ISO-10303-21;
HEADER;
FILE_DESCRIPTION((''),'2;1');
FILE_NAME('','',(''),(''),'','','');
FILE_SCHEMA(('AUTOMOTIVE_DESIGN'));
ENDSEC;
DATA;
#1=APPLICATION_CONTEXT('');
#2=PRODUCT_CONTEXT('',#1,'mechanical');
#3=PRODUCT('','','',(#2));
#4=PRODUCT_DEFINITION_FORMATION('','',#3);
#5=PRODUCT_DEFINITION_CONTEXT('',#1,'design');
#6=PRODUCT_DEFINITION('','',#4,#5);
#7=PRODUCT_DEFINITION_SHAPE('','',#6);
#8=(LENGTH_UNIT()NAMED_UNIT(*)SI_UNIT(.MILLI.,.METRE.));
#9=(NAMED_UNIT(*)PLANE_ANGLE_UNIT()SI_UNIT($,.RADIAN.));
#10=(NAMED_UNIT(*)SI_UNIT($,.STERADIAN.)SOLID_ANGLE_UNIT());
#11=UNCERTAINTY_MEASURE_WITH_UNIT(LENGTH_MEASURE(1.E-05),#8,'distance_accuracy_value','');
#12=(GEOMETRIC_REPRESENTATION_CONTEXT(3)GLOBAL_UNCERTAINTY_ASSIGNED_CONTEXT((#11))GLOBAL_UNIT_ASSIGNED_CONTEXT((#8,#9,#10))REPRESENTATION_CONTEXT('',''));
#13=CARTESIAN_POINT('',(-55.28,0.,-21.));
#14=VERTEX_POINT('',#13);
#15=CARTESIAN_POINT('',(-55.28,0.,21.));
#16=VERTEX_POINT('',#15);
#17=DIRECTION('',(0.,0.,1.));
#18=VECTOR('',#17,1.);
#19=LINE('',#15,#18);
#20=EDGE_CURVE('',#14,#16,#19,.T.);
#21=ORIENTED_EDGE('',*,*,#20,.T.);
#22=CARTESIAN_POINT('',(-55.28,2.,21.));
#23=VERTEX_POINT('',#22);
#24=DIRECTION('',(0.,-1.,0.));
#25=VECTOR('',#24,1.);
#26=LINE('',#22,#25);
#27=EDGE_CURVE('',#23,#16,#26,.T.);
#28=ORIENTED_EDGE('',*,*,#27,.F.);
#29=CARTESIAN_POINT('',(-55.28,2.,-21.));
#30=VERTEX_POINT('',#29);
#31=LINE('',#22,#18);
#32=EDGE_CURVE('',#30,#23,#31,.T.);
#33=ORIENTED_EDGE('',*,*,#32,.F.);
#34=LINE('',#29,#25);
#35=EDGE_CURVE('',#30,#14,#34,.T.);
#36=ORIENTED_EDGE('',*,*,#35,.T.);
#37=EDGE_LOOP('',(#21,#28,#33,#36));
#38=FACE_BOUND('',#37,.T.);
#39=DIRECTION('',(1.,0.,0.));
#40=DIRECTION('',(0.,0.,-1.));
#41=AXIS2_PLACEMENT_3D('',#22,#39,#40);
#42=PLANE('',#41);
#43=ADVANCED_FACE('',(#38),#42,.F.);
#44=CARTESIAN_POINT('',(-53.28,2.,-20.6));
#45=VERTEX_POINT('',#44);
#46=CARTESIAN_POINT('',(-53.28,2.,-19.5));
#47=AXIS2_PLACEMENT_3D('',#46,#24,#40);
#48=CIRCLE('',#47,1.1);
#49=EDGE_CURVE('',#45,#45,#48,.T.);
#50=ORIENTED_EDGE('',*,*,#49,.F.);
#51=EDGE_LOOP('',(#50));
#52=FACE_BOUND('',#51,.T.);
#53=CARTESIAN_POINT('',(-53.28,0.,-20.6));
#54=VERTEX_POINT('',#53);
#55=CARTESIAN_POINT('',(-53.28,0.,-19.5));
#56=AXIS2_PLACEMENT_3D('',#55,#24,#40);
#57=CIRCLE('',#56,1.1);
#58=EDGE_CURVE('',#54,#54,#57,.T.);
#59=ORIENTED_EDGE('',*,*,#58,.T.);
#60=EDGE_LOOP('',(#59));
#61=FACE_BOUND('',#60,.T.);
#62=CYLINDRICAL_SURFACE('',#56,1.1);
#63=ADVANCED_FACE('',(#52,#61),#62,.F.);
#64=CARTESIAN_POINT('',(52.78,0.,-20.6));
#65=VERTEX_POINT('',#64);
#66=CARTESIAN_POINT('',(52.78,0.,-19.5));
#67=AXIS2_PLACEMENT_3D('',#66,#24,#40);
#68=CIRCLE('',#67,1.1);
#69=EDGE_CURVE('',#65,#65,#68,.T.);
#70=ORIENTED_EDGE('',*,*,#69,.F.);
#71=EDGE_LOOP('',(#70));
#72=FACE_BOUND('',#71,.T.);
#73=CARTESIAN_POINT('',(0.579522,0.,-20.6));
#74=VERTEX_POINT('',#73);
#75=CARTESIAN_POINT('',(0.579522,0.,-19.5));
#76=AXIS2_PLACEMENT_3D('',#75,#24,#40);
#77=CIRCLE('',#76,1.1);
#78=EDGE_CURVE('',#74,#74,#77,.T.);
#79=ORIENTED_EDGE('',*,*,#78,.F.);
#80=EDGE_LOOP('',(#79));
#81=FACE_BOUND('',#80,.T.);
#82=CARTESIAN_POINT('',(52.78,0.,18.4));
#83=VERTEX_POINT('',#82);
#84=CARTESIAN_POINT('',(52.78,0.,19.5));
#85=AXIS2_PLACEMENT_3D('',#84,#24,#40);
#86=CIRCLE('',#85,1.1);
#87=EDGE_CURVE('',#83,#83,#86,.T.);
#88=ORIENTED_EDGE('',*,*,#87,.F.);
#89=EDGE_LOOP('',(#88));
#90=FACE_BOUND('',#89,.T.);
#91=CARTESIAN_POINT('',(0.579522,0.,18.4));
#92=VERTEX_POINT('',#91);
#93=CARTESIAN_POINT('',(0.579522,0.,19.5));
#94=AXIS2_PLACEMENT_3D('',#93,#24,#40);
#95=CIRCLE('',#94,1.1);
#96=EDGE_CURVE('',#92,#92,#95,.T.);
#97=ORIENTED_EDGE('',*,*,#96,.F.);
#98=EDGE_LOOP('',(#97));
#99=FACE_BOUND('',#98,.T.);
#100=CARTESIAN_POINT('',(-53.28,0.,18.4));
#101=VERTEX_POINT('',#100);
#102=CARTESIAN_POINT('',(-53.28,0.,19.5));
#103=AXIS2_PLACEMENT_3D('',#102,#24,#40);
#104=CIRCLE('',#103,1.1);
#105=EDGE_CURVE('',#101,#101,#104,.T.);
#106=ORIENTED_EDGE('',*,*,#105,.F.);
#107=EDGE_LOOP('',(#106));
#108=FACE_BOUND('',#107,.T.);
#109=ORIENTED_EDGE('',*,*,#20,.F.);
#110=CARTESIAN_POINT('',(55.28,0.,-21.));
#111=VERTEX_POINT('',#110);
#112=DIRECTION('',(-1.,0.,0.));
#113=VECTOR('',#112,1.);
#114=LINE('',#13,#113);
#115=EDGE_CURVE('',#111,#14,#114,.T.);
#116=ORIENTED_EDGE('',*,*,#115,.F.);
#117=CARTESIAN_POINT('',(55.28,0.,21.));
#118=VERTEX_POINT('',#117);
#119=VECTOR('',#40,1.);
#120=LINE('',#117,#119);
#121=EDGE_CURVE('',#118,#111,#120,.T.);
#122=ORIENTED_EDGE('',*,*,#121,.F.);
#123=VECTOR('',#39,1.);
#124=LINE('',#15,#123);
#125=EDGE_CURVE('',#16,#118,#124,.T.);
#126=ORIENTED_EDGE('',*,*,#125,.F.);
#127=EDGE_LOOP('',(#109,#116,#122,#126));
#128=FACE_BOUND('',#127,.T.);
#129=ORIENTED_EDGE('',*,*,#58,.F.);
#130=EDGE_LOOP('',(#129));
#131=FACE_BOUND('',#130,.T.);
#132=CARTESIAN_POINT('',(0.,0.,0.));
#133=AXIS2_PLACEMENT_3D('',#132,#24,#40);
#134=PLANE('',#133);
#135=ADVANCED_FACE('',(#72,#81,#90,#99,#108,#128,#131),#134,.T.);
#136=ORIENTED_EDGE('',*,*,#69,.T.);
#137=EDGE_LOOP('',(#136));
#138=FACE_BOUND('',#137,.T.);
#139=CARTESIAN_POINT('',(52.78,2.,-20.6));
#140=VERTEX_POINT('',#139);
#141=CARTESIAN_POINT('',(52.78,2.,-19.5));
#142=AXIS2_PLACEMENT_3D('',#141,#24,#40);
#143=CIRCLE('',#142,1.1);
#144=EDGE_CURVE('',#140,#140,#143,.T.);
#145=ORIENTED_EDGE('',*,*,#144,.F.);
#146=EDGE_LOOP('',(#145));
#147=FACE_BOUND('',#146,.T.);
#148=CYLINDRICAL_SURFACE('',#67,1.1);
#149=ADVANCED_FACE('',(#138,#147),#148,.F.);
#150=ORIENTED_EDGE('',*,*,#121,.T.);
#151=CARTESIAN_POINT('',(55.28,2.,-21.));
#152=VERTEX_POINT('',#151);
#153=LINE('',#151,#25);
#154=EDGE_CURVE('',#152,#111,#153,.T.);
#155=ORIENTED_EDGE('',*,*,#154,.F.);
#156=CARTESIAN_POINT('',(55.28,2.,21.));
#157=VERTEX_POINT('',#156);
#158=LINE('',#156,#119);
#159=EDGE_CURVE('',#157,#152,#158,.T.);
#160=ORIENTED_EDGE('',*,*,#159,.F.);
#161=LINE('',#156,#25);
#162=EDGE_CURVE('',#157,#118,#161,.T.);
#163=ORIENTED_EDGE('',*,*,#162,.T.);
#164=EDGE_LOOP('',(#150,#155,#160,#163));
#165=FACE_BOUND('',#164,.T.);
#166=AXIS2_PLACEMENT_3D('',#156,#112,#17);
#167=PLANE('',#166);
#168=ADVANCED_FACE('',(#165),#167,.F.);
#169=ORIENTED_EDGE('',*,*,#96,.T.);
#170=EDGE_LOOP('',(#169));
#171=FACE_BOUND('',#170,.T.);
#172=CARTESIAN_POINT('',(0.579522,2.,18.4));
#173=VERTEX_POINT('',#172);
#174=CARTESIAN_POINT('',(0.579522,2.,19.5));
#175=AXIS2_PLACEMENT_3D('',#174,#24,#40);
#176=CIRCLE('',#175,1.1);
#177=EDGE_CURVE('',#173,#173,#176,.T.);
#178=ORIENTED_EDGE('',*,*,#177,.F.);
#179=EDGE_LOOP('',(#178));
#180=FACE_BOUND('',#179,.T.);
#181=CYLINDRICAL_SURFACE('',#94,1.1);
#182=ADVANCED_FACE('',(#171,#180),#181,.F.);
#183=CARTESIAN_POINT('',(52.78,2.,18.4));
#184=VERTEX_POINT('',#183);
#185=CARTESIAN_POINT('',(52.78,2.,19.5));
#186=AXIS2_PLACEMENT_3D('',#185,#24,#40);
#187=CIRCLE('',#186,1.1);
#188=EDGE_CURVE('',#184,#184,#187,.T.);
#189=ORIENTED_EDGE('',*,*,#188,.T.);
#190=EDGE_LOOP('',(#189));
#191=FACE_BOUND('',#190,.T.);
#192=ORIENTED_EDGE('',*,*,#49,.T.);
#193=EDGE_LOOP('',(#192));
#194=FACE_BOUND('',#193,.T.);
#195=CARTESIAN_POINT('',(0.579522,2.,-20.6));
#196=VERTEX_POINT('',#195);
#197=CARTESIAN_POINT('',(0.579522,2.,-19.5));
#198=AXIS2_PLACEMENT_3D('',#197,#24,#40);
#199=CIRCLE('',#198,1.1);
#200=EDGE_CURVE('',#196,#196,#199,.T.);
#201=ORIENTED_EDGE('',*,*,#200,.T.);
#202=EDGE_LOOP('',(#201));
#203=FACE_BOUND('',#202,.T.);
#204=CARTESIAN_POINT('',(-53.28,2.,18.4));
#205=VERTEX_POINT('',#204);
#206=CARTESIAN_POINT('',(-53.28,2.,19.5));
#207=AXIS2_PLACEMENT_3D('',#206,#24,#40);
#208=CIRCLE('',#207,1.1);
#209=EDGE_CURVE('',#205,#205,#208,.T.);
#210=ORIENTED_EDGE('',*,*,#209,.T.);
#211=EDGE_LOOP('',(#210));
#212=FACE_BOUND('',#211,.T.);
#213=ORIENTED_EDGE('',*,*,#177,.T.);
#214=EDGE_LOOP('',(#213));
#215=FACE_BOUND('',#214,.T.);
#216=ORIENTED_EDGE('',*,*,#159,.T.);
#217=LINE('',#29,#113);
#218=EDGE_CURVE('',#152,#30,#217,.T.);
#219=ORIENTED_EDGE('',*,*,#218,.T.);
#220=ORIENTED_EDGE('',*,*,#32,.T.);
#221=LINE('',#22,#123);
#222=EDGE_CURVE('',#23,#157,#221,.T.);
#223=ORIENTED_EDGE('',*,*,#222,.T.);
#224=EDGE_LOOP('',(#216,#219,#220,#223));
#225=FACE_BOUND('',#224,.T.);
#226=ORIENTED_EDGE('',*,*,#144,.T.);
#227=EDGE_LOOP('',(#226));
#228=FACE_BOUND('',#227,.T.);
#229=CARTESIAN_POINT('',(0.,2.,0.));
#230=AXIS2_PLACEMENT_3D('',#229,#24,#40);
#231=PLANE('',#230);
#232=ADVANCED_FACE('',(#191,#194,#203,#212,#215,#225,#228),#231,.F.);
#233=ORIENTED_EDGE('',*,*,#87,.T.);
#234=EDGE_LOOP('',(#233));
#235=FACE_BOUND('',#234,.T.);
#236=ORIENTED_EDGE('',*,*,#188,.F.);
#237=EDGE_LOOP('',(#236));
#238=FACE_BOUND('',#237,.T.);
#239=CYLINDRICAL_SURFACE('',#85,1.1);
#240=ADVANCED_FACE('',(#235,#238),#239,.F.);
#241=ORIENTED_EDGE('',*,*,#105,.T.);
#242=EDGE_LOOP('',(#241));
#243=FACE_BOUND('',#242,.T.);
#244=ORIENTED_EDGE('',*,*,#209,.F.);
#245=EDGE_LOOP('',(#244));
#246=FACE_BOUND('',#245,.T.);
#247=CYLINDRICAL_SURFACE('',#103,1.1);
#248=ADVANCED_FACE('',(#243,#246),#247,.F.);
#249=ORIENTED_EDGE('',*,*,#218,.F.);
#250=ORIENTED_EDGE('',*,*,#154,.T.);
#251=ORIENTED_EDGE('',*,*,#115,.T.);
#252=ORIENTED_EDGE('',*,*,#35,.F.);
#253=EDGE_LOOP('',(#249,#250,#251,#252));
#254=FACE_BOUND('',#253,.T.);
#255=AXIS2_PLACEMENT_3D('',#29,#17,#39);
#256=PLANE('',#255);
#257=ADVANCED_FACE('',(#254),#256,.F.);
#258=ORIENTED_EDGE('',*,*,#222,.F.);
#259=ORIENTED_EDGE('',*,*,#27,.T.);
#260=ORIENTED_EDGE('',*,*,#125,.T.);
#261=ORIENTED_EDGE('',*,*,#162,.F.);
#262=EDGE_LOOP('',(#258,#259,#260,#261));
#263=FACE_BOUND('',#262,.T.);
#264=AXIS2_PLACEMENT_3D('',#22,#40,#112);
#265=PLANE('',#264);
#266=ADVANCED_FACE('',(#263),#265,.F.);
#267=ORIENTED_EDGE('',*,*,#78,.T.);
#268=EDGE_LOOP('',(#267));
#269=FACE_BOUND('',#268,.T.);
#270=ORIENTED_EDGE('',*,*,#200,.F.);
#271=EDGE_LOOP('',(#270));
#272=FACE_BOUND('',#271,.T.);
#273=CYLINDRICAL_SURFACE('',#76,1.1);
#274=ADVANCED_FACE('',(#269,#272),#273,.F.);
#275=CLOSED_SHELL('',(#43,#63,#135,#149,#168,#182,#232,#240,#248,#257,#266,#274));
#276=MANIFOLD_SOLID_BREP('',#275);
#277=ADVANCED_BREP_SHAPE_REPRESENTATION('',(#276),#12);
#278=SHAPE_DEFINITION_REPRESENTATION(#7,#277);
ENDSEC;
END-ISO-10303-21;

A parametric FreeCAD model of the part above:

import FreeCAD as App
import Part
import Sketcher
from FreeCAD import Vector
Q = App.Units.Quantity

doc = App.newDocument("Part")
body = doc.addObject("PartDesign::Body", "Body")

# Sketch on XZ plane
sketch1 = body.newObject("Sketcher::SketchObject", "Sketch")
sketch1.AttachmentSupport = (doc.getObject("XZ_Plane"), [""])
sketch1.MapMode = "FlatFace"
sketch1.addGeometry(Part.LineSegment(Vector(-55, -21, 0), Vector(-55, 21, 0)), False)
sketch1.addGeometry(Part.LineSegment(Vector(-55, 21, 0), Vector(55, 21, 0)), False)
sketch1.addGeometry(Part.LineSegment(Vector(55, 21, 0), Vector(55, -21, 0)), False)
sketch1.addGeometry(Part.LineSegment(Vector(55, -21, 0), Vector(-55, -21, 0)), False)
sketch1.addConstraint(Sketcher.Constraint("Coincident", 0, 2, 1, 1))
sketch1.addConstraint(Sketcher.Constraint("Coincident", 1, 2, 2, 1))
sketch1.addConstraint(Sketcher.Constraint("Coincident", 2, 2, 3, 1))
sketch1.addConstraint(Sketcher.Constraint("Coincident", 3, 2, 0, 1))
sketch1.addConstraint(Sketcher.Constraint("Vertical", 0))
sketch1.addConstraint(Sketcher.Constraint("Horizontal", 1))
sketch1.addConstraint(Sketcher.Constraint("Vertical", 2))
sketch1.addConstraint(Sketcher.Constraint("Horizontal", 3))
sketch1.addConstraint(Sketcher.Constraint("Symmetric", 0, 2, 2, 2, -1, 1))
sketch1.addConstraint(Sketcher.Constraint("DistanceY", 0, 1, 0, 2, Q("42 mm")))
sketch1.addConstraint(Sketcher.Constraint("DistanceX", 1, 1, 1, 2, Q("110.56 mm")))
pad1 = body.newObject("PartDesign::Pad", "Pad")
pad1.Profile = sketch1
pad1.Length = 2
pad1.Reversed = True

# Sketch on XZ plane
sketch2 = body.newObject("Sketcher::SketchObject", "Sketch001")
sketch2.AttachmentSupport = (doc.getObject("XZ_Plane"), [""])
sketch2.MapMode = "FlatFace"
sketch2.addGeometry(Part.Circle(Vector(-53.3, 19.5, 0), Vector(0, 0, 1), 1.1), False)
sketch2.addGeometry(Part.Circle(Vector(-53.3, -19.5, 0), Vector(0, 0, 1), 1.1), False)
sketch2.addGeometry(Part.Circle(Vector(52.8, -19.5, 0), Vector(0, 0, 1), 1.1), False)
sketch2.addGeometry(Part.Circle(Vector(0.6, -19.5, 0), Vector(0, 0, 1), 1.1), False)
sketch2.addGeometry(Part.Circle(Vector(0.6, 19.5, 0), Vector(0, 0, 1), 1.1), False)
sketch2.addGeometry(Part.Circle(Vector(52.8, 19.5, 0), Vector(0, 0, 1), 1.1), False)
sketch2.addConstraint(Sketcher.Constraint("Equal", 0, 1))
sketch2.addConstraint(Sketcher.Constraint("Equal", 1, 2))
sketch2.addConstraint(Sketcher.Constraint("Equal", 2, 3))
sketch2.addConstraint(Sketcher.Constraint("Equal", 3, 4))
sketch2.addConstraint(Sketcher.Constraint("Equal", 4, 5))
sketch2.addConstraint(Sketcher.Constraint("Symmetric", 0, 3, 1, 3, -1))
sketch2.addConstraint(Sketcher.Constraint("Symmetric", 3, 3, 4, 3, -1))
sketch2.addConstraint(Sketcher.Constraint("Symmetric", 2, 3, 5, 3, -1))
sketch2.addConstraint(Sketcher.Constraint("Horizontal", 1, 3, 2, 3))
sketch2.addConstraint(Sketcher.Constraint("Horizontal", 2, 3, 3, 3))
sketch2.addConstraint(Sketcher.Constraint("Diameter", 0, Q("2.2 mm")))
sketch2.addConstraint(Sketcher.Constraint("DistanceY", 1, 3, 0, 3, Q("39 mm")))
sketch2.addConstraint(Sketcher.Constraint("DistanceX", 0, 3, -1, 1, Q("53.28 mm")))
sketch2.addConstraint(Sketcher.Constraint("DistanceX", -1, 1, 2, 3, Q("52.78 mm")))
sketch2.addConstraint(Sketcher.Constraint("DistanceX", -1, 1, 3, 3, Q("0.579522 mm")))
doc.recompute()
hole = body.newObject("PartDesign::Hole", "Hole")
hole.Profile = sketch2
hole.ThreadType = "None"
hole.Diameter = 2.2
hole.DepthType = "Dimension"
hole.Depth = 2
hole.DrillPoint = "Flat"

doc.recompute()
